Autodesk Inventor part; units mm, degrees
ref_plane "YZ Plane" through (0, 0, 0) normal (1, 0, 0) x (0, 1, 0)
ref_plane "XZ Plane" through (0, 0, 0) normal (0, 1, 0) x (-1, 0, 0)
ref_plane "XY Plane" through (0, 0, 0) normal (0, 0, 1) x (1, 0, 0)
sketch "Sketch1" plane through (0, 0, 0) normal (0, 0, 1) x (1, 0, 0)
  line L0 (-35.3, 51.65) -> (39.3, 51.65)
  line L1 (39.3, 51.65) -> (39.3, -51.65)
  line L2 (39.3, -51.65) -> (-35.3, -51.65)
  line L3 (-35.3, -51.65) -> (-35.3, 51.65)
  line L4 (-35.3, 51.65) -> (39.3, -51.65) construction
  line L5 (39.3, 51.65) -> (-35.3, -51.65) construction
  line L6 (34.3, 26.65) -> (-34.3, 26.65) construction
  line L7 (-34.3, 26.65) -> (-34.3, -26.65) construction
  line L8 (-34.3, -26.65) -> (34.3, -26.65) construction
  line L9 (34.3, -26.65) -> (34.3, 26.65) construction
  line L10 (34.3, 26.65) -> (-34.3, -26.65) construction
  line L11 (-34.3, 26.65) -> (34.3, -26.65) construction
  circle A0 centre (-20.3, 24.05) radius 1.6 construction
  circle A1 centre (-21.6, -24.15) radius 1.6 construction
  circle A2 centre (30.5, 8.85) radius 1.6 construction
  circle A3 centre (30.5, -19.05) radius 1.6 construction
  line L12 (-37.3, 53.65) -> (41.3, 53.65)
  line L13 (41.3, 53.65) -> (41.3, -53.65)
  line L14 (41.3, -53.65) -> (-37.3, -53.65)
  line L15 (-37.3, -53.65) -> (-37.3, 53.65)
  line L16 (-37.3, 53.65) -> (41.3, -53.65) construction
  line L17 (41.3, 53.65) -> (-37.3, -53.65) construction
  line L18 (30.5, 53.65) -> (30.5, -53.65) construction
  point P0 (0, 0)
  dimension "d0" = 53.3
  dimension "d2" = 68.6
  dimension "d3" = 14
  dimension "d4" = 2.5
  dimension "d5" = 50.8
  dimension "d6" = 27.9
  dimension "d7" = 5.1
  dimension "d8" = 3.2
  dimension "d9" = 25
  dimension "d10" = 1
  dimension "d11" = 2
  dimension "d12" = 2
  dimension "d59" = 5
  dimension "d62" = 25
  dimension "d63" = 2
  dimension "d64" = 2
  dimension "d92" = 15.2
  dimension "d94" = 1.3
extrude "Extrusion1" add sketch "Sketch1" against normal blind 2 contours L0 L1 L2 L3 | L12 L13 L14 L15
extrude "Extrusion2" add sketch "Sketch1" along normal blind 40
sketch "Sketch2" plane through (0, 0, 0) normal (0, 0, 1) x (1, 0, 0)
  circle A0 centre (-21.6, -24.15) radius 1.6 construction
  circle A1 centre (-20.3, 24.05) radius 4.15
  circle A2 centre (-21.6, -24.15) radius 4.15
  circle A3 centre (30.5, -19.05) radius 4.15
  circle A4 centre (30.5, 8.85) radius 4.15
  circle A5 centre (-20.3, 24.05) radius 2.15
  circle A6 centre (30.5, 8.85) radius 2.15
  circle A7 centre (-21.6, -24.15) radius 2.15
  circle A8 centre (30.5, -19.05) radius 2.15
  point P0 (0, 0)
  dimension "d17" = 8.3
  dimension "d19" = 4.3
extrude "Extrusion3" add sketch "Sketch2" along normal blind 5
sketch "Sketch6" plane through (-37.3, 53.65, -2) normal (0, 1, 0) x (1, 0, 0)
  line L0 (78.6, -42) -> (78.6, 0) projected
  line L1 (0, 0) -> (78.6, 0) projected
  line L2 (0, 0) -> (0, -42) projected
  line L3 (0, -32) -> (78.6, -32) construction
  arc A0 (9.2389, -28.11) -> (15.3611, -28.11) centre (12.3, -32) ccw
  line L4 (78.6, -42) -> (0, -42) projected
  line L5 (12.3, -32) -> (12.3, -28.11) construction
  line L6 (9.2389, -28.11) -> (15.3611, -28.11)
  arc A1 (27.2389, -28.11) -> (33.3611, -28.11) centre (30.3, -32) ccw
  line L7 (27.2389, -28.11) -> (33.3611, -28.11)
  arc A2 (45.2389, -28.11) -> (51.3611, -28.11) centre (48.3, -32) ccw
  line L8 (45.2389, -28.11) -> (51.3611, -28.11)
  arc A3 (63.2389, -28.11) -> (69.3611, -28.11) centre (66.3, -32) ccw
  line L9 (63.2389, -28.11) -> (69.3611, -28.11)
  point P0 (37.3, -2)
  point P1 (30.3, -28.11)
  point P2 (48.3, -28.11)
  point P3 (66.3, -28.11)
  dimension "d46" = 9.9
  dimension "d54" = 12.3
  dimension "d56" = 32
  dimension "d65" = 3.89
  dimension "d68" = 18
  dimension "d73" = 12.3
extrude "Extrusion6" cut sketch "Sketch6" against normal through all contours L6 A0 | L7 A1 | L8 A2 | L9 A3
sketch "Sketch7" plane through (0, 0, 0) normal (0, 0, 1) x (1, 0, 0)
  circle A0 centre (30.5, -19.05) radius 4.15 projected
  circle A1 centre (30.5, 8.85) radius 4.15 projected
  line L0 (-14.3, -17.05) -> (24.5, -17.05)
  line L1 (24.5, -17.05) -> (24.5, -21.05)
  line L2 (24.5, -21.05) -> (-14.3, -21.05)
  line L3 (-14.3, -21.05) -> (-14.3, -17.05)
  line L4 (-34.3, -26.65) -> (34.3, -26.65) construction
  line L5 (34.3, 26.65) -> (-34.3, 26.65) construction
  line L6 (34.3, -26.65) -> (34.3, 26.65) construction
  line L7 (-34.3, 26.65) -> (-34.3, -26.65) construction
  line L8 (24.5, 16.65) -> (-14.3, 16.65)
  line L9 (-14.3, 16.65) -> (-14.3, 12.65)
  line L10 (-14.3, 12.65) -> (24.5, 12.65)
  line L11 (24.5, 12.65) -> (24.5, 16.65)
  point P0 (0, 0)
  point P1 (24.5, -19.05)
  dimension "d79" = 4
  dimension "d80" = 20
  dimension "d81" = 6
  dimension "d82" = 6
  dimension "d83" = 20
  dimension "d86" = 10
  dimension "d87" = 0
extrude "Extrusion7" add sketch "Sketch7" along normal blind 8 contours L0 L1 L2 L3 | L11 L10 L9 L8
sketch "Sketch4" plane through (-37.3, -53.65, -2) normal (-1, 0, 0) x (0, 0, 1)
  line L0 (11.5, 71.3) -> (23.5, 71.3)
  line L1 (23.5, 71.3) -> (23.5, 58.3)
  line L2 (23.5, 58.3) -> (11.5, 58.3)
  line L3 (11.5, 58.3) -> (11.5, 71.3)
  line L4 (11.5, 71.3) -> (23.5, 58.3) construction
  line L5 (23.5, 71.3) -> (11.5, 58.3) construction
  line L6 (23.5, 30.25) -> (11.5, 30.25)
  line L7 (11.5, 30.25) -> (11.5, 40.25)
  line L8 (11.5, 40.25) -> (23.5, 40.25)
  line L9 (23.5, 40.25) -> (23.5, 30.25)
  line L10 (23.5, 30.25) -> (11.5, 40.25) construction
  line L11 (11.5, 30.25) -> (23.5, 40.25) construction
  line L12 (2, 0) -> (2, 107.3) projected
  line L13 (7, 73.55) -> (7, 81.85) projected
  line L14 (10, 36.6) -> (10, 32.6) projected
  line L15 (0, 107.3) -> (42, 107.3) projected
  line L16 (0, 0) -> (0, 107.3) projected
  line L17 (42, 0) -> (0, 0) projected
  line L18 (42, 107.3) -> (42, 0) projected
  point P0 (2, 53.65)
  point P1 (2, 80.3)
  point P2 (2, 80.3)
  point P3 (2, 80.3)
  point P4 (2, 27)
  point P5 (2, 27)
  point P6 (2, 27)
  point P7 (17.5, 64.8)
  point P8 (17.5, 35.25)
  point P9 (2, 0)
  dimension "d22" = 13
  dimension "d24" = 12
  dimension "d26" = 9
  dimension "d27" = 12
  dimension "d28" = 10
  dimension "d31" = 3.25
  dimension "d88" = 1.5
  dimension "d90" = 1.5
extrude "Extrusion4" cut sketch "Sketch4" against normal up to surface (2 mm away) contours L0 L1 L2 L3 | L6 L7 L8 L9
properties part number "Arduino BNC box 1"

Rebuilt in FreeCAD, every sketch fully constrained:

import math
import FreeCAD as App
import Part
import Sketcher

V = App.Vector


def add_polygon(sketch, points):
    """Adds a closed chain of lines whose ends are joined by coincident constraints."""
    first, n = sketch.GeometryCount, len(points)
    for a, b in zip(points, points[1:] + points[:1]):
        sketch.addGeometry(Part.LineSegment(App.Vector(*a, 0), App.Vector(*b, 0)), False)
    for i in range(n):
        sketch.addConstraint(Sketcher.Constraint("Coincident", first + i, 2, first + (i + 1) % n, 1))

doc = App.newDocument("Part")
body = doc.addObject("PartDesign::Body", "Body")

sketch1 = body.newObject("Sketcher::SketchObject", "Sketch")
sketch1.AttachmentSupport = (doc.getObject("XY_Plane"), [""])
sketch1.MapMode = "FlatFace"
add_polygon(sketch1, [(41, 54), (-37, 54), (-37, -54), (41, -54)])
sketch1.addConstraint(Sketcher.Constraint("Horizontal", 0))
sketch1.addConstraint(Sketcher.Constraint("Vertical", 1))
sketch1.addConstraint(Sketcher.Constraint("Horizontal", 2))
sketch1.addConstraint(Sketcher.Constraint("Vertical", 3))
sketch1.addConstraint(Sketcher.Constraint("DistanceX", 0, 2, 0, 1, 78.6))
sketch1.addConstraint(Sketcher.Constraint("DistanceY", 1, 2, 1, 1, 107.3))
sketch1.addConstraint(Sketcher.Constraint("DistanceX", 0, 2, -1, 1, 37.3))
sketch1.addConstraint(Sketcher.Constraint("DistanceY", -1, 1, 0, 2, 53.65))
pad1 = body.newObject("PartDesign::Pad", "Pad")
pad1.Profile = sketch1
pad1.Length = 2
pad1.Reversed = True

sketch2 = body.newObject("Sketcher::SketchObject", "Sketch001")
sketch2.AttachmentSupport = (doc.getObject("XY_Plane"), [""])
sketch2.MapMode = "FlatFace"
add_polygon(sketch2, [(41, 54), (-37, 54), (-37, -54), (41, -54)])
add_polygon(sketch2, [(-35, -52), (-35, 52), (39, 52), (39, -52)])
sketch2.addConstraint(Sketcher.Constraint("Horizontal", 0))
sketch2.addConstraint(Sketcher.Constraint("Vertical", 1))
sketch2.addConstraint(Sketcher.Constraint("Horizontal", 2))
sketch2.addConstraint(Sketcher.Constraint("Vertical", 3))
sketch2.addConstraint(Sketcher.Constraint("Vertical", 4))
sketch2.addConstraint(Sketcher.Constraint("Horizontal", 5))
sketch2.addConstraint(Sketcher.Constraint("Vertical", 6))
sketch2.addConstraint(Sketcher.Constraint("Horizontal", 7))
sketch2.addConstraint(Sketcher.Constraint("DistanceX", 0, 2, 4, 2, 2.0))
sketch2.addConstraint(Sketcher.Constraint("DistanceY", 4, 2, 0, 2, 2.0))
sketch2.addConstraint(Sketcher.Constraint("DistanceX", 5, 2, 3, 2, 2.0))
sketch2.addConstraint(Sketcher.Constraint("DistanceY", 2, 2, 6, 2, 2.0))
sketch2.addConstraint(Sketcher.Constraint("DistanceX", 0, 2, 0, 1, 78.6))
sketch2.addConstraint(Sketcher.Constraint("DistanceY", 1, 2, 1, 1, 107.3))
sketch2.addConstraint(Sketcher.Constraint("DistanceX", 0, 2, -1, 1, 37.3))
sketch2.addConstraint(Sketcher.Constraint("DistanceY", -1, 1, 0, 2, 53.65))
pad2 = body.newObject("PartDesign::Pad", "Pad001")
pad2.Profile = sketch2
pad2.Length = 40

sketch3 = body.newObject("Sketcher::SketchObject", "Sketch002")
sketch3.AttachmentSupport = (doc.getObject("XY_Plane"), [""])
sketch3.MapMode = "FlatFace"
sketch3.addGeometry(Part.Circle(V(-20.3, 24.1, 0), V(0, 0, 1), 4.2), False)
sketch3.addGeometry(Part.Circle(V(-20.3, 24.1, 0), V(0, 0, 1), 2.1), False)
sketch3.addGeometry(Part.Circle(V(-21.6, -24.1, 0), V(0, 0, 1), 4.2), False)
sketch3.addGeometry(Part.Circle(V(-21.6, -24.1, 0), V(0, 0, 1), 2.1), False)
sketch3.addGeometry(Part.Circle(V(30.5, -19.1, 0), V(0, 0, 1), 4.2), False)
sketch3.addGeometry(Part.Circle(V(30.5, -19.1, 0), V(0, 0, 1), 2.1), False)
sketch3.addGeometry(Part.Circle(V(30.5, 8.8, 0), V(0, 0, 1), 4.2), False)
sketch3.addGeometry(Part.Circle(V(30.5, 8.8, 0), V(0, 0, 1), 2.1), False)
sketch3.addConstraint(Sketcher.Constraint("Coincident", 1, 3, 0, 3))
sketch3.addConstraint(Sketcher.Constraint("Coincident", 3, 3, 2, 3))
sketch3.addConstraint(Sketcher.Constraint("Coincident", 5, 3, 4, 3))
sketch3.addConstraint(Sketcher.Constraint("Coincident", 7, 3, 6, 3))
sketch3.addConstraint(Sketcher.Constraint("Equal", 0, 2))
sketch3.addConstraint(Sketcher.Constraint("Equal", 1, 3))
sketch3.addConstraint(Sketcher.Constraint("Equal", 2, 4))
sketch3.addConstraint(Sketcher.Constraint("Equal", 3, 5))
sketch3.addConstraint(Sketcher.Constraint("Equal", 4, 6))
sketch3.addConstraint(Sketcher.Constraint("Equal", 5, 7))
sketch3.addConstraint(Sketcher.Constraint("Vertical", 5, 3, 6, 3))
sketch3.addConstraint(Sketcher.Constraint("Diameter", 0, 8.3))
sketch3.addConstraint(Sketcher.Constraint("Diameter", 1, 4.3))
sketch3.addConstraint(Sketcher.Constraint("DistanceY", 2, 3, 6, 3, 33.0))
sketch3.addConstraint(Sketcher.Constraint("DistanceX", 0, 3, -1, 1, 20.3))
sketch3.addConstraint(Sketcher.Constraint("DistanceX", 2, 3, -1, 1, 21.6))
sketch3.addConstraint(Sketcher.Constraint("DistanceX", -1, 1, 4, 3, 30.5))
sketch3.addConstraint(Sketcher.Constraint("DistanceY", 2, 3, 0, 3, 48.2))
sketch3.addConstraint(Sketcher.Constraint("DistanceY", 2, 3, 4, 3, 5.1))
sketch3.addConstraint(Sketcher.Constraint("DistanceY", -1, 1, 0, 3, 24.05))
pad3 = body.newObject("PartDesign::Pad", "Pad002")
pad3.Profile = sketch3
pad3.Length = 5

sketch4 = body.newObject("Sketcher::SketchObject", "Sketch003")
sketch4.AttachmentSupport = (doc.getObject("XZ_Plane"), [""])
sketch4.MapMode = "FlatFace"
sketch4.AttachmentOffset = App.Placement(V(0, 0, -53.65), App.Rotation())
sketch4.addGeometry(Part.LineSegment(V(-21.9, 26.1, 0), V(-28.1, 26.1, 0)), False)
sketch4.addGeometry(Part.ArcOfCircle(Part.Circle(V(-25, 30, 0), V(0, 0, 1), 4.9), math.radians(-52), math.radians(232)), False)
sketch4.addGeometry(Part.LineSegment(V(-3.9, 26.1, 0), V(-10.1, 26.1, 0)), False)
sketch4.addGeometry(Part.ArcOfCircle(Part.Circle(V(-7, 30, 0), V(0, 0, 1), 4.9), math.radians(-52), math.radians(232)), False)
sketch4.addGeometry(Part.LineSegment(V(14.1, 26.1, 0), V(7.9, 26.1, 0)), False)
sketch4.addGeometry(Part.ArcOfCircle(Part.Circle(V(11, 30, 0), V(0, 0, 1), 4.9), math.radians(-52), math.radians(232)), False)
sketch4.addGeometry(Part.LineSegment(V(32.1, 26.1, 0), V(25.9, 26.1, 0)), False)
sketch4.addGeometry(Part.ArcOfCircle(Part.Circle(V(29, 30, 0), V(0, 0, 1), 4.9), math.radians(-52), math.radians(232)), False)
sketch4.addConstraint(Sketcher.Constraint("Coincident", 0, 1, 1, 1))
sketch4.addConstraint(Sketcher.Constraint("Coincident", 1, 2, 0, 2))
sketch4.addConstraint(Sketcher.Constraint("Coincident", 2, 1, 3, 1))
sketch4.addConstraint(Sketcher.Constraint("Coincident", 3, 2, 2, 2))
sketch4.addConstraint(Sketcher.Constraint("Coincident", 4, 1, 5, 1))
sketch4.addConstraint(Sketcher.Constraint("Coincident", 5, 2, 4, 2))
sketch4.addConstraint(Sketcher.Constraint("Coincident", 6, 1, 7, 1))
sketch4.addConstraint(Sketcher.Constraint("Coincident", 7, 2, 6, 2))
sketch4.addConstraint(Sketcher.Constraint("Horizontal", 0))
sketch4.addConstraint(Sketcher.Constraint("Horizontal", 2))
sketch4.addConstraint(Sketcher.Constraint("Horizontal", 4))
sketch4.addConstraint(Sketcher.Constraint("Horizontal", 6))
sketch4.addConstraint(Sketcher.Constraint("Equal", 1, 3))
sketch4.addConstraint(Sketcher.Constraint("Equal", 3, 5))
sketch4.addConstraint(Sketcher.Constraint("Equal", 5, 7))
sketch4.addConstraint(Sketcher.Constraint("Horizontal", 1, 3, 3, 3))
sketch4.addConstraint(Sketcher.Constraint("Horizontal", 3, 3, 5, 3))
sketch4.addConstraint(Sketcher.Constraint("Horizontal", 5, 3, 7, 3))
sketch4.addConstraint(Sketcher.Constraint("Horizontal", 1, 2, 2, 1))
sketch4.addConstraint(Sketcher.Constraint("Horizontal", 3, 2, 4, 1))
sketch4.addConstraint(Sketcher.Constraint("Horizontal", 5, 2, 6, 1))
sketch4.addConstraint(Sketcher.Constraint("Radius", 1, 4.95))
sketch4.addConstraint(Sketcher.Constraint("DistanceX", 1, 3, 3, 3, 18.0))
sketch4.addConstraint(Sketcher.Constraint("DistanceX", 3, 3, 5, 3, 18.0))
sketch4.addConstraint(Sketcher.Constraint("DistanceX", 5, 3, 7, 3, 18.0))
sketch4.addConstraint(Sketcher.Constraint("DistanceY", 0, 1, 1, 3, 3.89))
sketch4.addConstraint(Sketcher.Constraint("DistanceX", 1, 3, -1, 1, 25.0))
sketch4.addConstraint(Sketcher.Constraint("DistanceY", -1, 1, 1, 3, 30.0))
pocket1 = body.newObject("PartDesign::Pocket", "Pocket")
pocket1.Profile = sketch4
pocket1.Type = "ThroughAll"
pocket1.Reversed = True

sketch5 = body.newObject("Sketcher::SketchObject", "Sketch004")
sketch5.AttachmentSupport = (doc.getObject("XY_Plane"), [""])
sketch5.MapMode = "FlatFace"
add_polygon(sketch5, [(24.5, -17.1), (-14.3, -17.1), (-14.3, -21.1), (24.5, -21.1)])
add_polygon(sketch5, [(24.5, 12.7), (24.5, 16.6), (-14.3, 16.6), (-14.3, 12.7)])
sketch5.addConstraint(Sketcher.Constraint("Horizontal", 0))
sketch5.addConstraint(Sketcher.Constraint("Vertical", 1))
sketch5.addConstraint(Sketcher.Constraint("Horizontal", 2))
sketch5.addConstraint(Sketcher.Constraint("Vertical", 3))
sketch5.addConstraint(Sketcher.Constraint("Vertical", 4))
sketch5.addConstraint(Sketcher.Constraint("Horizontal", 5))
sketch5.addConstraint(Sketcher.Constraint("Vertical", 6))
sketch5.addConstraint(Sketcher.Constraint("Horizontal", 7))
sketch5.addConstraint(Sketcher.Constraint("Vertical", 3, 2, 4, 2))
sketch5.addConstraint(Sketcher.Constraint("Vertical", 1, 2, 5, 2))
sketch5.addConstraint(Sketcher.Constraint("Equal", 3, 4))
sketch5.addConstraint(Sketcher.Constraint("DistanceY", 1, 2, 1, 1, 4.0))
sketch5.addConstraint(Sketcher.Constraint("DistanceX", 0, 2, 0, 1, 38.8))
sketch5.addConstraint(Sketcher.Constraint("DistanceX", 0, 2, -1, 1, 14.3))
sketch5.addConstraint(Sketcher.Constraint("DistanceY", 3, 2, 4, 2, 33.7))
sketch5.addConstraint(Sketcher.Constraint("DistanceY", 0, 2, -1, 1, 17.05))
pad4 = body.newObject("PartDesign::Pad", "Pad003")
pad4.Profile = sketch5
pad4.Length = 8

sketch6 = body.newObject("Sketcher::SketchObject", "Sketch005")
sketch6.AttachmentSupport = (doc.getObject("YZ_Plane"), [""])
sketch6.MapMode = "FlatFace"
sketch6.AttachmentOffset = App.Placement(V(0, 0, -37.3), App.Rotation())
add_polygon(sketch6, [(18, 22), (18, 10), (5, 10), (5, 22)])
add_polygon(sketch6, [(-23, 10), (-23, 22), (-13, 22), (-13, 10)])
sketch6.addConstraint(Sketcher.Constraint("Vertical", 0))
sketch6.addConstraint(Sketcher.Constraint("Horizontal", 1))
sketch6.addConstraint(Sketcher.Constraint("Vertical", 2))
sketch6.addConstraint(Sketcher.Constraint("Horizontal", 3))
sketch6.addConstraint(Sketcher.Constraint("Vertical", 4))
sketch6.addConstraint(Sketcher.Constraint("Horizontal", 5))
sketch6.addConstraint(Sketcher.Constraint("Vertical", 6))
sketch6.addConstraint(Sketcher.Constraint("Horizontal", 7))
sketch6.addConstraint(Sketcher.Constraint("Horizontal", 3, 2, 4, 2))
sketch6.addConstraint(Sketcher.Constraint("Horizontal", 1, 2, 6, 2))
sketch6.addConstraint(Sketcher.Constraint("DistanceX", 1, 2, 1, 1, 13.0))
sketch6.addConstraint(Sketcher.Constraint("DistanceX", 5, 1, 5, 2, 10.0))
sketch6.addConstraint(Sketcher.Constraint("DistanceY", 0, 2, 0, 1, 12.0))
sketch6.addConstraint(Sketcher.Constraint("DistanceY", -1, 1, 0, 2, 9.5))
sketch6.addConstraint(Sketcher.Constraint("DistanceX", 4, 2, -1, 1, 23.4))
sketch6.addConstraint(Sketcher.Constraint("DistanceX", -1, 1, 0, 2, 17.65))
pocket2 = body.newObject("PartDesign::Pocket", "Pocket001")
pocket2.Profile = sketch6
pocket2.Length = 2
pocket2.Reversed = True

doc.recompute()
